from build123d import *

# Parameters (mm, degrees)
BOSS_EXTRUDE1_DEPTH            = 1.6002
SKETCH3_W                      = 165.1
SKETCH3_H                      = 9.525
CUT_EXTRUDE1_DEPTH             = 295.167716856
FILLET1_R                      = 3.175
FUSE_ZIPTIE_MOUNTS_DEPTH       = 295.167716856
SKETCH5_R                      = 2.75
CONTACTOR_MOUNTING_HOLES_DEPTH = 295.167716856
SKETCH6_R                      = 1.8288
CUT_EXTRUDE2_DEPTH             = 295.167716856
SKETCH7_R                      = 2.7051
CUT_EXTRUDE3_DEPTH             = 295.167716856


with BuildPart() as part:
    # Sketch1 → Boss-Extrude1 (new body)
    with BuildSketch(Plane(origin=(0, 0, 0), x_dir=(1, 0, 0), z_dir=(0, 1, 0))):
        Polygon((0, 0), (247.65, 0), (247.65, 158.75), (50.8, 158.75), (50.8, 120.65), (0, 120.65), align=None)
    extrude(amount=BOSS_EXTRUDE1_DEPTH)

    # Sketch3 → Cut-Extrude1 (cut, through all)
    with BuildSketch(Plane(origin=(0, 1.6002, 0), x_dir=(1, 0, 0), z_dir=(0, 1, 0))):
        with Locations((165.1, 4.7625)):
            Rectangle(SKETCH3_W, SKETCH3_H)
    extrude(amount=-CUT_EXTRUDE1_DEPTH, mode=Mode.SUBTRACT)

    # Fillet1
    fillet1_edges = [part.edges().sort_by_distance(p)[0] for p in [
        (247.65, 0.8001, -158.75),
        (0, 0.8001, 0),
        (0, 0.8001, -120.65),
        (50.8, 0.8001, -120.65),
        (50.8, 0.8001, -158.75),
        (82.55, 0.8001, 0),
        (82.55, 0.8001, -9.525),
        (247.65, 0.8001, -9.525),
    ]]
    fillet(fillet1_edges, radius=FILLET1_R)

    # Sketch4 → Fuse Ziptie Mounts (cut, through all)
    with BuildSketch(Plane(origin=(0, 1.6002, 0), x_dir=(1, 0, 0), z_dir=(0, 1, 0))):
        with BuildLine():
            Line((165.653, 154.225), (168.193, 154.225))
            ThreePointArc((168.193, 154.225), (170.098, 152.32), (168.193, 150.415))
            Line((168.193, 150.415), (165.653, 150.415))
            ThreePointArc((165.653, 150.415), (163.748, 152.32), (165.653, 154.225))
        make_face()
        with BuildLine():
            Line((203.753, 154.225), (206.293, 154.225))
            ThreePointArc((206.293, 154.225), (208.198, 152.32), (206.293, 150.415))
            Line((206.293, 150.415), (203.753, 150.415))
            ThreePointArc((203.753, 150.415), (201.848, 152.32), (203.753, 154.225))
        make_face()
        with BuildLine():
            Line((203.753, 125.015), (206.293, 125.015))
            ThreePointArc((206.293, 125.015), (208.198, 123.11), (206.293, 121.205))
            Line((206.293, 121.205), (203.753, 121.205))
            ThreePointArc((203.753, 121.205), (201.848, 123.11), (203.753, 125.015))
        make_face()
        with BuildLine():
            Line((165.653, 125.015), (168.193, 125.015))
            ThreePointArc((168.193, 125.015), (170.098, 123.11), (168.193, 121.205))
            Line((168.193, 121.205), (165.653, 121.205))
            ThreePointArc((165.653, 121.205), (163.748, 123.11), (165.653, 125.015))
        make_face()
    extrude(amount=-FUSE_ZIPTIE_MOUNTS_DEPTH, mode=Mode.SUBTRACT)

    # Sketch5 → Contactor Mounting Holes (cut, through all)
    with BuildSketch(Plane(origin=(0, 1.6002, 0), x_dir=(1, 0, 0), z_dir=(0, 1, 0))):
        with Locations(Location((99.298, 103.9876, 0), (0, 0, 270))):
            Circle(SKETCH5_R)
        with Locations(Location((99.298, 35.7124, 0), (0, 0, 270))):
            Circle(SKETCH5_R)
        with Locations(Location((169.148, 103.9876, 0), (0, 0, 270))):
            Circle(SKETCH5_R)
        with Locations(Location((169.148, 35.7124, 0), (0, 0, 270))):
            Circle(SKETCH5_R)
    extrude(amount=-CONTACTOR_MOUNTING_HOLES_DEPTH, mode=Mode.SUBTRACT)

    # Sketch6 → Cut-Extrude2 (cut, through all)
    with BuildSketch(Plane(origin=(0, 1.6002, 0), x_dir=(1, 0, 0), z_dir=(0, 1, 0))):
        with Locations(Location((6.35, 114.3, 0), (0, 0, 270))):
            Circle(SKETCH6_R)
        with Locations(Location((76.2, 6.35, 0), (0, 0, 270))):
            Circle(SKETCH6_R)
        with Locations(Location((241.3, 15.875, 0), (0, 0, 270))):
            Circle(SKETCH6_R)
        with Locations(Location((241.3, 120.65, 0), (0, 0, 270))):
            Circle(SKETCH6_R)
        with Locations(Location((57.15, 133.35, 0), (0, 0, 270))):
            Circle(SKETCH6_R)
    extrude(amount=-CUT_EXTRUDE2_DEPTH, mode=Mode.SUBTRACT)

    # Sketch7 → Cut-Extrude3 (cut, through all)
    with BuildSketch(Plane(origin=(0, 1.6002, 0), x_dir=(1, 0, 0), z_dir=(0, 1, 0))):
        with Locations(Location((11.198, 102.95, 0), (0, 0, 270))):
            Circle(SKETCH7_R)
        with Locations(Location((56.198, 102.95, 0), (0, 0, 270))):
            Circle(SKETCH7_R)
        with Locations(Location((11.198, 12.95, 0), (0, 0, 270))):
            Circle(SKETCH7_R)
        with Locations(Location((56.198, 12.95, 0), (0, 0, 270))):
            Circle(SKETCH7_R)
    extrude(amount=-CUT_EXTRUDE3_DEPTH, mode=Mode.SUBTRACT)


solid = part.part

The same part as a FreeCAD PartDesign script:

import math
import FreeCAD as App
import Part
import Sketcher
Q = App.Units.Quantity


def edges_at(feature, points):
    """Names of the edges that pass closest to the given points."""
    edges = feature.Shape.Edges
    near = lambda p: min(range(len(edges)), key=lambda i: edges[i].distToShape(Part.Vertex(*p))[0])
    return sorted({f"Edge{near(p) + 1}" for p in points})


def add_polygon(sketch, points):
    """Adds a closed chain of lines whose ends are joined by coincident constraints."""
    first, n = sketch.GeometryCount, len(points)
    for a, b in zip(points, points[1:] + points[:1]):
        sketch.addGeometry(Part.LineSegment(App.Vector(*a, 0), App.Vector(*b, 0)), False)
    for i in range(n):
        sketch.addConstraint(Sketcher.Constraint("Coincident", first + i, 2, first + (i + 1) % n, 1))

doc = App.newDocument("Part")
body = doc.addObject("PartDesign::Body", "Body")

# Sketch on XZ plane
sketch1 = body.newObject("Sketcher::SketchObject", "Sketch")
sketch1.AttachmentSupport = (doc.getObject("XZ_Plane"), [""])
sketch1.MapMode = "FlatFace"
add_polygon(sketch1, [(0, 0), (247.65, 0), (247.65, -158.75), (50.8, -158.75), (50.8, -120.65), (0, -120.65)])  # lines 0-5
sketch1.addConstraint(Sketcher.Constraint("Horizontal", 0))
sketch1.addConstraint(Sketcher.Constraint("Vertical", 1))
sketch1.addConstraint(Sketcher.Constraint("Horizontal", 2))
sketch1.addConstraint(Sketcher.Constraint("Vertical", 3))
sketch1.addConstraint(Sketcher.Constraint("Horizontal", 4))
sketch1.addConstraint(Sketcher.Constraint("Vertical", 5))
sketch1.addConstraint(Sketcher.Constraint("Coincident", 5, 2, -1, 1))
sketch1.addConstraint(Sketcher.Constraint("DistanceX", 4, 2, 4, 1, Q("2 in")))
sketch1.addConstraint(Sketcher.Constraint("DistanceY", 3, 1, 3, 2, Q("1.5 in")))
sketch1.addConstraint(Sketcher.Constraint("DistanceX", 0, 1, 0, 2, Q("9.75 in")))
sketch1.addConstraint(Sketcher.Constraint("DistanceY", 1, 2, 1, 1, Q("6.25 in")))
pad1 = body.newObject("PartDesign::Pad", "Pad")
pad1.Profile = sketch1
pad1.Length = Q("0.063 in")
pad1.Reversed = True

# Sketch on XZ plane
sketch2 = body.newObject("Sketcher::SketchObject", "Sketch001")
sketch2.AttachmentSupport = (doc.getObject("XZ_Plane"), [""])
sketch2.MapMode = "FlatFace"
sketch2.AttachmentOffset = App.Placement(App.Vector(0, 0, -0.063 * 25.4), App.Rotation())
add_polygon(sketch2, [(82.55, -9.525), (82.55, 0), (247.65, 0), (247.65, -9.525)])  # lines 0-3
sketch2.addConstraint(Sketcher.Constraint("Vertical", 0))
sketch2.addConstraint(Sketcher.Constraint("Horizontal", 1))
sketch2.addConstraint(Sketcher.Constraint("Vertical", 2))
sketch2.addConstraint(Sketcher.Constraint("Horizontal", 3))
sketch2.addConstraint(Sketcher.Constraint("PointOnObject", 0, 2, -1))
sketch2.addConstraint(Sketcher.Constraint("DistanceX", 1, 1, 1, 2, Q("6.5 in")))
sketch2.addConstraint(Sketcher.Constraint("DistanceY", 0, 1, 0, 2, Q("0.375 in")))
sketch2.addConstraint(Sketcher.Constraint("DistanceX", -1, 1, 0, 2, Q("3.25 in")))
pocket1 = body.newObject("PartDesign::Pocket", "Pocket")
pocket1.Profile = sketch2
pocket1.Type = "ThroughAll"
pocket1.Reversed = True
doc.recompute()

fillet = body.newObject("PartDesign::Fillet", "Fillet")
fillet.Base = (pocket1, edges_at(pocket1, [
    (247.65, 0.8, -158.75),
    (0, 0.8, 0),
    (0, 0.8, -120.65),
    (50.8, 0.8, -120.65),
    (50.8, 0.8, -158.75),
    (82.55, 0.8, 0),
    (82.55, 0.8, -9.525),
    (247.65, 0.8, -9.525),
]))
fillet.Radius = Q("0.125 in")

# Sketch on XZ plane
sketch3 = body.newObject("Sketcher::SketchObject", "Sketch002")
sketch3.AttachmentSupport = (doc.getObject("XZ_Plane"), [""])
sketch3.MapMode = "FlatFace"
sketch3.AttachmentOffset = App.Placement(App.Vector(0, 0, -0.063 * 25.4), App.Rotation())
sketch3.addGeometry(Part.LineSegment(App.Vector(168.193, -154.225, 0), App.Vector(165.653, -154.225, 0)), False)
sketch3.addGeometry(Part.ArcOfCircle(Part.Circle(App.Vector(165.653, -152.32, 0), App.Vector(0, 0, 1), 1.905), math.radians(90), math.radians(270)), False)
sketch3.addGeometry(Part.LineSegment(App.Vector(165.653, -150.415, 0), App.Vector(168.193, -150.415, 0)), False)
sketch3.addGeometry(Part.ArcOfCircle(Part.Circle(App.Vector(168.193, -152.32, 0), App.Vector(0, 0, 1), 1.905), math.radians(-90), math.radians(90)), False)
sketch3.addGeometry(Part.LineSegment(App.Vector(206.293, -154.225, 0), App.Vector(203.753, -154.225, 0)), False)
sketch3.addGeometry(Part.ArcOfCircle(Part.Circle(App.Vector(203.753, -152.32, 0), App.Vector(0, 0, 1), 1.905), math.radians(90), math.radians(270)), False)
sketch3.addGeometry(Part.LineSegment(App.Vector(203.753, -150.415, 0), App.Vector(206.293, -150.415, 0)), False)
sketch3.addGeometry(Part.ArcOfCircle(Part.Circle(App.Vector(206.293, -152.32, 0), App.Vector(0, 0, 1), 1.905), math.radians(-90), math.radians(90)), False)
sketch3.addGeometry(Part.LineSegment(App.Vector(206.293, -125.015, 0), App.Vector(203.753, -125.015, 0)), False)
sketch3.addGeometry(Part.ArcOfCircle(Part.Circle(App.Vector(203.753, -123.11, 0), App.Vector(0, 0, 1), 1.905), math.radians(90), math.radians(270)), False)
sketch3.addGeometry(Part.LineSegment(App.Vector(203.753, -121.205, 0), App.Vector(206.293, -121.205, 0)), False)
sketch3.addGeometry(Part.ArcOfCircle(Part.Circle(App.Vector(206.293, -123.11, 0), App.Vector(0, 0, 1), 1.905), math.radians(-90), math.radians(90)), False)
sketch3.addGeometry(Part.LineSegment(App.Vector(168.193, -125.015, 0), App.Vector(165.653, -125.015, 0)), False)
sketch3.addGeometry(Part.ArcOfCircle(Part.Circle(App.Vector(165.653, -123.11, 0), App.Vector(0, 0, 1), 1.905), math.radians(90), math.radians(270)), False)
sketch3.addGeometry(Part.LineSegment(App.Vector(165.653, -121.205, 0), App.Vector(168.193, -121.205, 0)), False)
sketch3.addGeometry(Part.ArcOfCircle(Part.Circle(App.Vector(168.193, -123.11, 0), App.Vector(0, 0, 1), 1.905), math.radians(-90), math.radians(90)), False)
sketch3.addConstraint(Sketcher.Constraint("Tangent", 0, 2, 1, 2))
sketch3.addConstraint(Sketcher.Constraint("Tangent", 1, 1, 2, 1))
sketch3.addConstraint(Sketcher.Constraint("Tangent", 2, 2, 3, 2))
sketch3.addConstraint(Sketcher.Constraint("Tangent", 3, 1, 0, 1))
sketch3.addConstraint(Sketcher.Constraint("Tangent", 4, 2, 5, 2))
sketch3.addConstraint(Sketcher.Constraint("Tangent", 5, 1, 6, 1))
sketch3.addConstraint(Sketcher.Constraint("Tangent", 6, 2, 7, 2))
sketch3.addConstraint(Sketcher.Constraint("Tangent", 7, 1, 4, 1))
sketch3.addConstraint(Sketcher.Constraint("Tangent", 8, 2, 9, 2))
sketch3.addConstraint(Sketcher.Constraint("Tangent", 9, 1, 10, 1))
sketch3.addConstraint(Sketcher.Constraint("Tangent", 10, 2, 11, 2))
sketch3.addConstraint(Sketcher.Constraint("Tangent", 11, 1, 8, 1))
sketch3.addConstraint(Sketcher.Constraint("Tangent", 12, 2, 13, 2))
sketch3.addConstraint(Sketcher.Constraint("Tangent", 13, 1, 14, 1))
sketch3.addConstraint(Sketcher.Constraint("Tangent", 14, 2, 15, 2))
sketch3.addConstraint(Sketcher.Constraint("Tangent", 15, 1, 12, 1))
sketch3.addConstraint(Sketcher.Constraint("Horizontal", 0))
sketch3.addConstraint(Sketcher.Constraint("Horizontal", 2))
sketch3.addConstraint(Sketcher.Constraint("Horizontal", 4))
sketch3.addConstraint(Sketcher.Constraint("Horizontal", 6))
sketch3.addConstraint(Sketcher.Constraint("Horizontal", 8))
sketch3.addConstraint(Sketcher.Constraint("Horizontal", 10))
sketch3.addConstraint(Sketcher.Constraint("Horizontal", 12))
sketch3.addConstraint(Sketcher.Constraint("Horizontal", 14))
sketch3.addConstraint(Sketcher.Constraint("Equal", 3, 5))
sketch3.addConstraint(Sketcher.Constraint("Equal", 7, 9))
sketch3.addConstraint(Sketcher.Constraint("Equal", 11, 13))
sketch3.addConstraint(Sketcher.Constraint("Horizontal", 3, 3, 5, 3))
sketch3.addConstraint(Sketcher.Constraint("Horizontal", 11, 3, 13, 3))
sketch3.addConstraint(Sketcher.Constraint("Vertical", 5, 3, 9, 3))
sketch3.addConstraint(Sketcher.Constraint("Vertical", 7, 3, 11, 3))
sketch3.addConstraint(Sketcher.Constraint("Vertical", 1, 3, 13, 3))
sketch3.addConstraint(Sketcher.Constraint("Vertical", 3, 3, 15, 3))
sketch3.addConstraint(Sketcher.Constraint("Equal", 2, 4))
sketch3.addConstraint(Sketcher.Constraint("DistanceX", 0, 2, 0, 1, Q("0.1 in")))
sketch3.addConstraint(Sketcher.Constraint("Radius", 1, Q("0.075 in")))
sketch3.addConstraint(Sketcher.Constraint("DistanceY", 5, 1, 8, 2, Q("1 in")))
sketch3.addConstraint(Sketcher.Constraint("DistanceX", 3, 3, 5, 3, Q("1.4 in")))
sketch3.addConstraint(Sketcher.Constraint("DistanceX", -1, 1, 1, 3, 165.653))
sketch3.addConstraint(Sketcher.Constraint("DistanceY", 1, 3, -1, 1, 152.32))
pocket2 = body.newObject("PartDesign::Pocket", "Pocket001")
pocket2.Profile = sketch3
pocket2.Type = "ThroughAll"
pocket2.Reversed = True

# Sketch on XZ plane
sketch4 = body.newObject("Sketcher::SketchObject", "Sketch003")
sketch4.AttachmentSupport = (doc.getObject("XZ_Plane"), [""])
sketch4.MapMode = "FlatFace"
sketch4.AttachmentOffset = App.Placement(App.Vector(0, 0, -0.063 * 25.4), App.Rotation())
sketch4.addGeometry(Part.Circle(App.Vector(99.298, -103.9876, 0), App.Vector(0, 0, 1), 2.75), False)
sketch4.addGeometry(Part.Circle(App.Vector(99.298, -35.7124, 0), App.Vector(0, 0, 1), 2.75), False)
sketch4.addGeometry(Part.Circle(App.Vector(169.148, -103.9876, 0), App.Vector(0, 0, 1), 2.75), False)
sketch4.addGeometry(Part.Circle(App.Vector(169.148, -35.7124, 0), App.Vector(0, 0, 1), 2.75), False)
sketch4.addConstraint(Sketcher.Constraint("Equal", 0, 1))
sketch4.addConstraint(Sketcher.Constraint("Equal", 1, 2))
sketch4.addConstraint(Sketcher.Constraint("Equal", 2, 3))
sketch4.addConstraint(Sketcher.Constraint("Horizontal", 0, 3, 2, 3))
sketch4.addConstraint(Sketcher.Constraint("Horizontal", 1, 3, 3, 3))
sketch4.addConstraint(Sketcher.Constraint("Vertical", 0, 3, 1, 3))
sketch4.addConstraint(Sketcher.Constraint("Vertical", 2, 3, 3, 3))
sketch4.addConstraint(Sketcher.Constraint("Diameter", 0, 5.5))
sketch4.addConstraint(Sketcher.Constraint("DistanceX", 0, 3, 2, 3, Q("2.75 in")))
sketch4.addConstraint(Sketcher.Constraint("DistanceY", 0, 3, -1, 1, Q("4.094 in")))
sketch4.addConstraint(Sketcher.Constraint("DistanceY", 1, 3, -1, 1, Q("1.406 in")))
sketch4.addConstraint(Sketcher.Constraint("DistanceX", -1, 1, 0, 3, 99.298))
pocket3 = body.newObject("PartDesign::Pocket", "Pocket002")
pocket3.Profile = sketch4
pocket3.Type = "ThroughAll"
pocket3.Reversed = True

# Sketch on XZ plane
sketch5 = body.newObject("Sketcher::SketchObject", "Sketch004")
sketch5.AttachmentSupport = (doc.getObject("XZ_Plane"), [""])
sketch5.MapMode = "FlatFace"
sketch5.AttachmentOffset = App.Placement(App.Vector(0, 0, -0.063 * 25.4), App.Rotation())
sketch5.addGeometry(Part.Circle(App.Vector(6.35, -114.3, 0), App.Vector(0, 0, 1), 1.8288), False)
sketch5.addGeometry(Part.Circle(App.Vector(76.2, -6.35, 0), App.Vector(0, 0, 1), 1.8288), False)
sketch5.addGeometry(Part.Circle(App.Vector(241.3, -15.875, 0), App.Vector(0, 0, 1), 1.8288), False)
sketch5.addGeometry(Part.Circle(App.Vector(241.3, -120.65, 0), App.Vector(0, 0, 1), 1.8288), False)
sketch5.addGeometry(Part.Circle(App.Vector(57.15, -133.35, 0), App.Vector(0, 0, 1), 1.8288), False)
sketch5.addConstraint(Sketcher.Constraint("Equal", 0, 1))
sketch5.addConstraint(Sketcher.Constraint("Equal", 1, 2))
sketch5.addConstraint(Sketcher.Constraint("Equal", 2, 3))
sketch5.addConstraint(Sketcher.Constraint("Equal", 3, 4))
sketch5.addConstraint(Sketcher.Constraint("Vertical", 2, 3, 3, 3))
sketch5.addConstraint(Sketcher.Constraint("Diameter", 0, Q("0.144 in")))
sketch5.addConstraint(Sketcher.Constraint("DistanceX", -1, 1, 1, 3, Q("3 in")))
sketch5.addConstraint(Sketcher.Constraint("DistanceX", 0, 3, 4, 3, Q("2 in")))
sketch5.addConstraint(Sketcher.Constraint("DistanceY", 4, 3, 1, 3, Q("5 in")))
sketch5.addConstraint(Sketcher.Constraint("DistanceY", 0, 3, -1, 1, Q("4.5 in")))
sketch5.addConstraint(Sketcher.Constraint("DistanceX", -1, 1, 2, 3, Q("9.5 in")))
sketch5.addConstraint(Sketcher.Constraint("DistanceY", 3, 3, 1, 3, Q("4.5 in")))
sketch5.addConstraint(Sketcher.Constraint("DistanceX", -1, 1, 0, 3, Q("0.25 in")))
sketch5.addConstraint(Sketcher.Constraint("DistanceY", 1, 3, -1, 1, Q("0.25 in")))
sketch5.addConstraint(Sketcher.Constraint("DistanceY", 2, 3, -1, 1, Q("0.625 in")))
pocket4 = body.newObject("PartDesign::Pocket", "Pocket003")
pocket4.Profile = sketch5
pocket4.Type = "ThroughAll"
pocket4.Reversed = True

# Sketch on XZ plane
sketch6 = body.newObject("Sketcher::SketchObject", "Sketch005")
sketch6.AttachmentSupport = (doc.getObject("XZ_Plane"), [""])
sketch6.MapMode = "FlatFace"
sketch6.AttachmentOffset = App.Placement(App.Vector(0, 0, -0.063 * 25.4), App.Rotation())
sketch6.addGeometry(Part.Circle(App.Vector(11.198, -102.95, 0), App.Vector(0, 0, 1), 2.7051), False)
sketch6.addGeometry(Part.Circle(App.Vector(56.198, -102.95, 0), App.Vector(0, 0, 1), 2.7051), False)
sketch6.addGeometry(Part.Circle(App.Vector(11.198, -12.95, 0), App.Vector(0, 0, 1), 2.7051), False)
sketch6.addGeometry(Part.Circle(App.Vector(56.198, -12.95, 0), App.Vector(0, 0, 1), 2.7051), False)
sketch6.addConstraint(Sketcher.Constraint("Equal", 0, 1))
sketch6.addConstraint(Sketcher.Constraint("Equal", 1, 2))
sketch6.addConstraint(Sketcher.Constraint("Equal", 2, 3))
sketch6.addConstraint(Sketcher.Constraint("Horizontal", 0, 3, 1, 3))
sketch6.addConstraint(Sketcher.Constraint("Horizontal", 2, 3, 3, 3))
sketch6.addConstraint(Sketcher.Constraint("Vertical", 0, 3, 2, 3))
sketch6.addConstraint(Sketcher.Constraint("Vertical", 1, 3, 3, 3))
sketch6.addConstraint(Sketcher.Constraint("Diameter", 0, Q("0.213 in")))
sketch6.addConstraint(Sketcher.Constraint("DistanceX", -1, 1, 0, 3, 11.198))
sketch6.addConstraint(Sketcher.Constraint("DistanceY", 0, 3, -1, 1, 102.95))
sketch6.addConstraint(Sketcher.Constraint("DistanceX", -1, 1, 1, 3, 56.198))
sketch6.addConstraint(Sketcher.Constraint("DistanceY", 2, 3, -1, 1, 12.95))
pocket5 = body.newObject("PartDesign::Pocket", "Pocket004")
pocket5.Profile = sketch6
pocket5.Type = "ThroughAll"
pocket5.Reversed = True

doc.recompute()
